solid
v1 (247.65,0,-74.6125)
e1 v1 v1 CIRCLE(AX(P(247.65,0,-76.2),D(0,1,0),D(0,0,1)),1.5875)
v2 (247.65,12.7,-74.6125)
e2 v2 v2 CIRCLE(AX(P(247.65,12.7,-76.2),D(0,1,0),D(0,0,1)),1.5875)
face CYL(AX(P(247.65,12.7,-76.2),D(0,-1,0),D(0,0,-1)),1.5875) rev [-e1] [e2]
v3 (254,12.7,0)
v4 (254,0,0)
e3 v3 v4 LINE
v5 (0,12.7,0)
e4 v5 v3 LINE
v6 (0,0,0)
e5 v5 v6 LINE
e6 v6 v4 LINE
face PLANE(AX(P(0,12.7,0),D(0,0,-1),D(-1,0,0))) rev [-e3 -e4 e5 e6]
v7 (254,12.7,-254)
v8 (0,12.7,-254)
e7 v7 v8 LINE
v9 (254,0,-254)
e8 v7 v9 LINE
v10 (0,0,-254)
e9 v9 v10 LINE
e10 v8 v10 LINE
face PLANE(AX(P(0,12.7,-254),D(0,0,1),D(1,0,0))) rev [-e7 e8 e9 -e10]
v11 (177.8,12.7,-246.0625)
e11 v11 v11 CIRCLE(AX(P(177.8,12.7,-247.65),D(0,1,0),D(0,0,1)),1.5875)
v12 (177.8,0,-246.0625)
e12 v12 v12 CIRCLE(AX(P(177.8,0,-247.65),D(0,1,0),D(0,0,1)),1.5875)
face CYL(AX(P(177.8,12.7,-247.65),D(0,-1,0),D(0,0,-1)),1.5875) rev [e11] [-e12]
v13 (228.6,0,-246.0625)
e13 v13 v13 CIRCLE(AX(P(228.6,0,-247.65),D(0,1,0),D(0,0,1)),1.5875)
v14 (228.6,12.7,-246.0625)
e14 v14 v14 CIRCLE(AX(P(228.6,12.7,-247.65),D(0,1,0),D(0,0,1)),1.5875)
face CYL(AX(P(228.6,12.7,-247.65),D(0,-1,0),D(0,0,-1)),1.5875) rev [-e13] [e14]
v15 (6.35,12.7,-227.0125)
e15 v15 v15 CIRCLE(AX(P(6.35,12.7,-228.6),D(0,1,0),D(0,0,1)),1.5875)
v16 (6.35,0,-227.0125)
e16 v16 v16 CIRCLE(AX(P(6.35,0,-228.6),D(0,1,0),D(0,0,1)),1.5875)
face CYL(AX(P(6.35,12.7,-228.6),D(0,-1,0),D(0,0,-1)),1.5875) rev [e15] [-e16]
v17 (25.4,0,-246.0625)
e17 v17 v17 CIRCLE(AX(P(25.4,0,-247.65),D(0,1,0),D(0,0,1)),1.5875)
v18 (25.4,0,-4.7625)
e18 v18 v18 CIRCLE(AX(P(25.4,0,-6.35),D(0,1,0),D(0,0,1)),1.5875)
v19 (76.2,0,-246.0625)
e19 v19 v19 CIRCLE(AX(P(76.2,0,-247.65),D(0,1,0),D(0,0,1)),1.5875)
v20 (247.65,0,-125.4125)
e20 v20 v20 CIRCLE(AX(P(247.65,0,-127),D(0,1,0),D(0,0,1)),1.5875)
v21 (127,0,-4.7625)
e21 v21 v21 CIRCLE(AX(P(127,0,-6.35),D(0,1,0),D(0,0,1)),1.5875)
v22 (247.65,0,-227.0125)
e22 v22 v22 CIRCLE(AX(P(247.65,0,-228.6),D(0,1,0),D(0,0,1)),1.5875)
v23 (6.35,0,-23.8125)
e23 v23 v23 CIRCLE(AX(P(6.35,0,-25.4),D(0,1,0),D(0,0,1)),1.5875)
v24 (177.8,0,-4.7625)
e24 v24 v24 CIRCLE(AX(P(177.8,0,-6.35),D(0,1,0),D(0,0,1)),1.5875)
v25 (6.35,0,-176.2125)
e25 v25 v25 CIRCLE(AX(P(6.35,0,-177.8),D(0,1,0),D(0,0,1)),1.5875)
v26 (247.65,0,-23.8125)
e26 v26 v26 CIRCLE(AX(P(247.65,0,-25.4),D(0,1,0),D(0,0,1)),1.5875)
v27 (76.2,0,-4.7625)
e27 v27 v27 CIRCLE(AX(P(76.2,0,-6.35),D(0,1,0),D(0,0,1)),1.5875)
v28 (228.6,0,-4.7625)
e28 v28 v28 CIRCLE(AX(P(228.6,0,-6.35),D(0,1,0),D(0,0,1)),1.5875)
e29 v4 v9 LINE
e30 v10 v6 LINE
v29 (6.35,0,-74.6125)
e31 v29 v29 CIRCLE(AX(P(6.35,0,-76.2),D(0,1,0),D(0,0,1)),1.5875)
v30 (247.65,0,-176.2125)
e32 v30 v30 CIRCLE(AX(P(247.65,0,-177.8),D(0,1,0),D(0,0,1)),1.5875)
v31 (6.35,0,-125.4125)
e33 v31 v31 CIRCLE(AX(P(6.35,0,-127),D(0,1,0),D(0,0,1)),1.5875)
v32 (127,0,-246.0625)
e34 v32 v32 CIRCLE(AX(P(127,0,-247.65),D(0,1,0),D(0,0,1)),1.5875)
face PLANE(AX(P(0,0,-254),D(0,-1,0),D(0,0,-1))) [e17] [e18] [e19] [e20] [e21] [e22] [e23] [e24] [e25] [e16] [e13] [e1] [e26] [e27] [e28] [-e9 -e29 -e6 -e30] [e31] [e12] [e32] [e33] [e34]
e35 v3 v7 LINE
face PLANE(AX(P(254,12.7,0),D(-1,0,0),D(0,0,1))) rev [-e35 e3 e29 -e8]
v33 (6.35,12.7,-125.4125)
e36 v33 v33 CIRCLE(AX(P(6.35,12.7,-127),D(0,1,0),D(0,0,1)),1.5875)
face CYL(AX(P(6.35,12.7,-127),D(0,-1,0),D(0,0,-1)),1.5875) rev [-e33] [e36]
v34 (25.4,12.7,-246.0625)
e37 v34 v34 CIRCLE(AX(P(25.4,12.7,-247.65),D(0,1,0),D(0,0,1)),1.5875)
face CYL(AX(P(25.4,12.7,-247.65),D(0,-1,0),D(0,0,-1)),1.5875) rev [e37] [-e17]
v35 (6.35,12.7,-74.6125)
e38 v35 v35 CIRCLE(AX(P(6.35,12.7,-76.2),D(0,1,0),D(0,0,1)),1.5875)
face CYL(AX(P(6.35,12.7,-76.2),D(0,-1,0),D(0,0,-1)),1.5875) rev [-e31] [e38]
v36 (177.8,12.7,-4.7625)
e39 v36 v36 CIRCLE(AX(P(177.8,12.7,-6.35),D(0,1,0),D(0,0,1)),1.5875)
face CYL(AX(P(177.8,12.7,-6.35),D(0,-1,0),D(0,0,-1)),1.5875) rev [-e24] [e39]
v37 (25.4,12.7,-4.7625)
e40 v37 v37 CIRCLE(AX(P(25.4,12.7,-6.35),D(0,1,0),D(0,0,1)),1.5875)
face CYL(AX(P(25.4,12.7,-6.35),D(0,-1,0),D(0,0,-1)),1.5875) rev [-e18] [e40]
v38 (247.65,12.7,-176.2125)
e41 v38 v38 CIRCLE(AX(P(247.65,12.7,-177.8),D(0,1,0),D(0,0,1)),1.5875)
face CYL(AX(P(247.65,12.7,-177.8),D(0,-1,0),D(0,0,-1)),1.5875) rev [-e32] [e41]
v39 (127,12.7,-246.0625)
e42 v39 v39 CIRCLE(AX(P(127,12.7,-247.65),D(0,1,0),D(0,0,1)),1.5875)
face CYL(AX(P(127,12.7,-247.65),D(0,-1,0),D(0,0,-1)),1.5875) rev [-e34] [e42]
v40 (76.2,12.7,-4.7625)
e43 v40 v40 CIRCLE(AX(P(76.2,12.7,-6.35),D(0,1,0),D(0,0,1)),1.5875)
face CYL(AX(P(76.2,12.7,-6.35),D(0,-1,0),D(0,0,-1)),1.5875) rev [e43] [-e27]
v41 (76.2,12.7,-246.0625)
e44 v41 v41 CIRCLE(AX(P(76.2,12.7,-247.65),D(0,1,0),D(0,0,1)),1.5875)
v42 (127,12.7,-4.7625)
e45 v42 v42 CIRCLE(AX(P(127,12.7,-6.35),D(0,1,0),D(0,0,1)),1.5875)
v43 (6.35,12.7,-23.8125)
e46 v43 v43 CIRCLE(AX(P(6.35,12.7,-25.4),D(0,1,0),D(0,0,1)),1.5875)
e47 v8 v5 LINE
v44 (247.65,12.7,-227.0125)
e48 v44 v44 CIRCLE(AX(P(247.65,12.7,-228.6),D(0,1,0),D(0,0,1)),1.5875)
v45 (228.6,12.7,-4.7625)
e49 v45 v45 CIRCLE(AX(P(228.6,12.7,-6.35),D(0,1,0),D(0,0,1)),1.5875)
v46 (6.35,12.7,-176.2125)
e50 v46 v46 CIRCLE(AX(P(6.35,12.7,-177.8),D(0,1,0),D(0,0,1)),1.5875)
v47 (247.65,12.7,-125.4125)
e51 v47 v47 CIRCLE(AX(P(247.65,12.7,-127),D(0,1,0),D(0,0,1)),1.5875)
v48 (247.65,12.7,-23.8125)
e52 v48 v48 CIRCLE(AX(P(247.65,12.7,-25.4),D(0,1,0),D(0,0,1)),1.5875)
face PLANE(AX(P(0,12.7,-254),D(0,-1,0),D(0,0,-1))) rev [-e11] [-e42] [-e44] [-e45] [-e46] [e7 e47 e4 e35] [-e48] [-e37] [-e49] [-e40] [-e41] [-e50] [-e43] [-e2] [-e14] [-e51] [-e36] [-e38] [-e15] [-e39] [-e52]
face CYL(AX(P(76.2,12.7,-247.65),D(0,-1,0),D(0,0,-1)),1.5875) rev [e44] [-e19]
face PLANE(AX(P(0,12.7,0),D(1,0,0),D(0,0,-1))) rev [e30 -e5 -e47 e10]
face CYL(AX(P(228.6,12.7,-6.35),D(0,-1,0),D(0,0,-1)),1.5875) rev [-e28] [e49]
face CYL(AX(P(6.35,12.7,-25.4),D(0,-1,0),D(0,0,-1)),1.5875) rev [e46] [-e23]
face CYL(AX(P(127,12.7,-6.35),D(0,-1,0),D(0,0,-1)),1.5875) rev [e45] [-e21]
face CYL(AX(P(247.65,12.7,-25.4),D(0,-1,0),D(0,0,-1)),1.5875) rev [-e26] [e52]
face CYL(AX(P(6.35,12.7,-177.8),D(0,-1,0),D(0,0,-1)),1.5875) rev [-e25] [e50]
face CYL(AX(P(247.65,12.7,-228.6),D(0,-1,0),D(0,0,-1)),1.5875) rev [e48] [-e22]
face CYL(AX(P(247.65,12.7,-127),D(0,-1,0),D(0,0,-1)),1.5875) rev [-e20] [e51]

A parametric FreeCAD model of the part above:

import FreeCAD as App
import Part
import Sketcher
from FreeCAD import Vector
Q = App.Units.Quantity


def add_polygon(sketch, points):
    """Adds a closed chain of lines whose ends are joined by coincident constraints."""
    first, n = sketch.GeometryCount, len(points)
    for a, b in zip(points, points[1:] + points[:1]):
        sketch.addGeometry(Part.LineSegment(App.Vector(*a, 0), App.Vector(*b, 0)), False)
    for i in range(n):
        sketch.addConstraint(Sketcher.Constraint("Coincident", first + i, 2, first + (i + 1) % n, 1))

doc = App.newDocument("Part")
body = doc.addObject("PartDesign::Body", "Body")

sketch1 = body.newObject("Sketcher::SketchObject", "Sketch")
sketch1.AttachmentSupport = (doc.getObject("XZ_Plane"), [""])
sketch1.MapMode = "FlatFace"
add_polygon(sketch1, [(0, -254), (0, 0), (254, 0), (254, -254)])
sketch1.addGeometry(Part.Circle(Vector(25.4, -6.3, 0), Vector(0, 0, 1), 1.6), False)
sketch1.addGeometry(Part.Circle(Vector(6.3, -25.4, 0), Vector(0, 0, 1), 1.6), False)
sketch1.addGeometry(Part.Circle(Vector(76.2, -6.3, 0), Vector(0, 0, 1), 1.6), False)
sketch1.addGeometry(Part.Circle(Vector(127, -6.3, 0), Vector(0, 0, 1), 1.6), False)
sketch1.addGeometry(Part.Circle(Vector(6.3, -76.2, 0), Vector(0, 0, 1), 1.6), False)
sketch1.addGeometry(Part.Circle(Vector(6.3, -127, 0), Vector(0, 0, 1), 1.6), False)
sketch1.addGeometry(Part.Circle(Vector(177.8, -6.3, 0), Vector(0, 0, 1), 1.6), False)
sketch1.addGeometry(Part.Circle(Vector(228.6, -6.3, 0), Vector(0, 0, 1), 1.6), False)
sketch1.addGeometry(Part.Circle(Vector(247.7, -25.4, 0), Vector(0, 0, 1), 1.6), False)
sketch1.addGeometry(Part.Circle(Vector(247.7, -76.2, 0), Vector(0, 0, 1), 1.6), False)
sketch1.addGeometry(Part.Circle(Vector(247.7, -127, 0), Vector(0, 0, 1), 1.6), False)
sketch1.addGeometry(Part.Circle(Vector(6.3, -177.8, 0), Vector(0, 0, 1), 1.6), False)
sketch1.addGeometry(Part.Circle(Vector(6.3, -228.6, 0), Vector(0, 0, 1), 1.6), False)
sketch1.addGeometry(Part.Circle(Vector(25.4, -247.7, 0), Vector(0, 0, 1), 1.6), False)
sketch1.addGeometry(Part.Circle(Vector(76.2, -247.7, 0), Vector(0, 0, 1), 1.6), False)
sketch1.addGeometry(Part.Circle(Vector(127, -247.7, 0), Vector(0, 0, 1), 1.6), False)
sketch1.addGeometry(Part.Circle(Vector(247.7, -177.8, 0), Vector(0, 0, 1), 1.6), False)
sketch1.addGeometry(Part.Circle(Vector(177.8, -247.7, 0), Vector(0, 0, 1), 1.6), False)
sketch1.addGeometry(Part.Circle(Vector(247.7, -228.6, 0), Vector(0, 0, 1), 1.6), False)
sketch1.addGeometry(Part.Circle(Vector(228.6, -247.7, 0), Vector(0, 0, 1), 1.6), False)
sketch1.addConstraint([
    Sketcher.Constraint("Vertical", 0),
    Sketcher.Constraint("Horizontal", 1),
    Sketcher.Constraint("Vertical", 2),
    Sketcher.Constraint("Horizontal", 3),
    Sketcher.Constraint("Coincident", 0, 2, -1, 1),
    Sketcher.Constraint("Equal", 4, 5),
    Sketcher.Constraint("Equal", 5, 6),
    Sketcher.Constraint("Equal", 6, 7),
    Sketcher.Constraint("Equal", 7, 8),
    Sketcher.Constraint("Equal", 8, 9),
    Sketcher.Constraint("Equal", 9, 10),
    Sketcher.Constraint("Equal", 10, 11),
    Sketcher.Constraint("Equal", 11, 12),
    Sketcher.Constraint("Equal", 12, 13),
    Sketcher.Constraint("Equal", 13, 14),
    Sketcher.Constraint("Equal", 14, 15),
    Sketcher.Constraint("Equal", 15, 16),
    Sketcher.Constraint("Equal", 16, 17),
    Sketcher.Constraint("Equal", 17, 18),
    Sketcher.Constraint("Equal", 18, 19),
    Sketcher.Constraint("Equal", 19, 20),
    Sketcher.Constraint("Equal", 20, 21),
    Sketcher.Constraint("Equal", 21, 22),
    Sketcher.Constraint("Equal", 22, 23),
    Sketcher.Constraint("Horizontal", 4, 3, 6, 3),
    Sketcher.Constraint("Horizontal", 6, 3, 7, 3),
    Sketcher.Constraint("Horizontal", 7, 3, 10, 3),
    Sketcher.Constraint("Horizontal", 10, 3, 11, 3),
    Sketcher.Constraint("Horizontal", 5, 3, 12, 3),
    Sketcher.Constraint("Horizontal", 8, 3, 13, 3),
    Sketcher.Constraint("Horizontal", 9, 3, 14, 3),
    Sketcher.Constraint("Horizontal", 17, 3, 18, 3),
    Sketcher.Constraint("Horizontal", 18, 3, 19, 3),
    Sketcher.Constraint("Horizontal", 15, 3, 20, 3),
    Sketcher.Constraint("Horizontal", 19, 3, 21, 3),
    Sketcher.Constraint("Horizontal", 16, 3, 22, 3),
    Sketcher.Constraint("Horizontal", 21, 3, 23, 3),
    Sketcher.Constraint("Vertical", 5, 3, 8, 3),
    Sketcher.Constraint("Vertical", 8, 3, 9, 3),
    Sketcher.Constraint("Vertical", 12, 3, 13, 3),
    Sketcher.Constraint("Vertical", 13, 3, 14, 3),
    Sketcher.Constraint("Vertical", 9, 3, 15, 3),
    Sketcher.Constraint("Vertical", 15, 3, 16, 3),
    Sketcher.Constraint("Vertical", 4, 3, 17, 3),
    Sketcher.Constraint("Vertical", 6, 3, 18, 3),
    Sketcher.Constraint("Vertical", 7, 3, 19, 3),
    Sketcher.Constraint("Vertical", 14, 3, 20, 3),
    Sketcher.Constraint("Vertical", 10, 3, 21, 3),
    Sketcher.Constraint("Vertical", 20, 3, 22, 3),
    Sketcher.Constraint("Vertical", 11, 3, 23, 3),
    Sketcher.Constraint("Equal", 3, 0),
    Sketcher.Constraint("DistanceX", 1, 1, 1, 2, Q("10 in")),
    Sketcher.Constraint("Diameter", 4, Q("0.125 in")),
    Sketcher.Constraint("DistanceX", -1, 1, 4, 3, Q("1 in")),
    Sketcher.Constraint("DistanceY", 5, 3, -1, 1, Q("1 in")),
    Sketcher.Constraint("DistanceX", -1, 1, 6, 3, Q("3 in")),
    Sketcher.Constraint("DistanceX", -1, 1, 7, 3, Q("5 in")),
    Sketcher.Constraint("DistanceY", 8, 3, -1, 1, Q("3 in")),
    Sketcher.Constraint("DistanceY", 9, 3, -1, 1, Q("5 in")),
    Sketcher.Constraint("DistanceX", -1, 1, 10, 3, Q("7 in")),
    Sketcher.Constraint("DistanceX", -1, 1, 11, 3, Q("9 in")),
    Sketcher.Constraint("DistanceY", 15, 3, -1, 1, Q("7 in")),
    Sketcher.Constraint("DistanceY", 16, 3, -1, 1, Q("9 in")),
    Sketcher.Constraint("DistanceY", 4, 3, -1, 1, Q("0.25 in")),
    Sketcher.Constraint("DistanceX", -1, 1, 5, 3, Q("0.25 in")),
    Sketcher.Constraint("DistanceX", -1, 1, 12, 3, Q("9.75 in")),
    Sketcher.Constraint("DistanceY", 17, 3, -1, 1, Q("9.75 in")),
])
pad1 = body.newObject("PartDesign::Pad", "Pad")
pad1.Profile = sketch1
pad1.Length = Q("0.5 in")
pad1.Reversed = True

doc.recompute()
